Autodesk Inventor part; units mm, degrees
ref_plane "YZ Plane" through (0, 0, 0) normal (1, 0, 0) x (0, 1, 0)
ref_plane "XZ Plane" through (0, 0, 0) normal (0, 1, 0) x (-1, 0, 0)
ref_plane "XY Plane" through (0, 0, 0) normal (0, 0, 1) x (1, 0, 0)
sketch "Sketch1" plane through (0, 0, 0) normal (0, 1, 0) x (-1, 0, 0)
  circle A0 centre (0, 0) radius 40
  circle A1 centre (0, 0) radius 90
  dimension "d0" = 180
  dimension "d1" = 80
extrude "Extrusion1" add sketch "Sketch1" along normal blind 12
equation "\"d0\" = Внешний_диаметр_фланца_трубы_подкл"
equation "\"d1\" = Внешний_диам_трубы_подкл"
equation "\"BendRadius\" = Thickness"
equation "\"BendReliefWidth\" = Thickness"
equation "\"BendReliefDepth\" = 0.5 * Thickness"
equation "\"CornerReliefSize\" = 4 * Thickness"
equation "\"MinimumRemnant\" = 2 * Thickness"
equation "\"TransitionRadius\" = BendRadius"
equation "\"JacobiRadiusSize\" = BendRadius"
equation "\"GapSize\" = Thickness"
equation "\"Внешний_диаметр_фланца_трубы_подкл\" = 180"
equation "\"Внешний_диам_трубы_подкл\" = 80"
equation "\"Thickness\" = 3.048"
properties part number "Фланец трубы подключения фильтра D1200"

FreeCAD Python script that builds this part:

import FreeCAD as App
import Part
import Sketcher
Q = App.Units.Quantity

doc = App.newDocument("Part")
body = doc.addObject("PartDesign::Body", "Body")

sketch1 = doc.addObject("Sketcher::SketchObject", "Sketch")
body.addObject(sketch1)
sketch1.AttachmentSupport = (doc.XZ_Plane, [""])
sketch1.MapMode = "FlatFace"
sketch1.addGeometry([
    Part.Circle(App.Vector(0, 0, 0), App.Vector(0, 0, 1), 90),
    Part.Circle(App.Vector(0, 0, 0), App.Vector(0, 0, 1), 40),
], False)
sketch1.addConstraint([
    Sketcher.Constraint("Coincident", 0, 3, -1, 1),
    Sketcher.Constraint("Coincident", 1, 3, -1, 1),
    Sketcher.Constraint("Diameter", 0, Q("180 mm")),
    Sketcher.Constraint("Diameter", 1, Q("80 mm")),
])
pad1 = doc.addObject("PartDesign::Pad", "Pad")
body.addObject(pad1)
pad1.Profile = sketch1
pad1.Length = 12
pad1.Reversed = True

doc.recompute()
